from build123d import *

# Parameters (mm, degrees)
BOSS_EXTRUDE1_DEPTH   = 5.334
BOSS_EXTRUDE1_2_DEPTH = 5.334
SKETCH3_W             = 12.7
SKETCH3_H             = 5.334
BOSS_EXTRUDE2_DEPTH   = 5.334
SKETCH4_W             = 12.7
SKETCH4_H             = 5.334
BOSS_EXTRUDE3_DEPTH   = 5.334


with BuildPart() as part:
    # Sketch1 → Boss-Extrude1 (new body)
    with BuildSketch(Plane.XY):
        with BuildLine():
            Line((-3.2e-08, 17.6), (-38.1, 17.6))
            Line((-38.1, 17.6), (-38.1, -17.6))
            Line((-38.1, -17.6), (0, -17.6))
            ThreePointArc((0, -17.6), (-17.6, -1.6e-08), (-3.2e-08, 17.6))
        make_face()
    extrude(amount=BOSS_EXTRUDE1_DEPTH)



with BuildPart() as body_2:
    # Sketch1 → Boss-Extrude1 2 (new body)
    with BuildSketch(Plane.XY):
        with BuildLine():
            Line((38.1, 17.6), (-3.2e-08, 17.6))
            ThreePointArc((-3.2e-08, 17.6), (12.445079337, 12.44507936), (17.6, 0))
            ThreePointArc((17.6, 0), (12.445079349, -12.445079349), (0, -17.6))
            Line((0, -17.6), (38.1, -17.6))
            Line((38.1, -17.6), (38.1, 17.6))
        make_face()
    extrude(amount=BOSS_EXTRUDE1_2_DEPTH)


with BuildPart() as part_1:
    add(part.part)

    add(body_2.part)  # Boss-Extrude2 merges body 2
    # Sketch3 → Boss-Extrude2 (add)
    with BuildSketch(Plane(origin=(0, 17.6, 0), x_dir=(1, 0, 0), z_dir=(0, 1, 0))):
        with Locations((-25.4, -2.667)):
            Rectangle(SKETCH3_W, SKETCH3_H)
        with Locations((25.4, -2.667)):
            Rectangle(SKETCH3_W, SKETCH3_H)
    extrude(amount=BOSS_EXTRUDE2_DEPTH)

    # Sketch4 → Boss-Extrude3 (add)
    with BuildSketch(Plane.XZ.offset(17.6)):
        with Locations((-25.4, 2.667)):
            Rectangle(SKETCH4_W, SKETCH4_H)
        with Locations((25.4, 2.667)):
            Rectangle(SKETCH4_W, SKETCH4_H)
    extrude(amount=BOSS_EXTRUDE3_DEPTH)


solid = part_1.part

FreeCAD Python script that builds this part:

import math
import FreeCAD as App
import Part
import Sketcher
from FreeCAD import Vector
Q = App.Units.Quantity


def add_polygon(sketch, points):
    """Adds a closed chain of lines whose ends are joined by coincident constraints."""
    first, n = sketch.GeometryCount, len(points)
    for a, b in zip(points, points[1:] + points[:1]):
        sketch.addGeometry(Part.LineSegment(App.Vector(*a, 0), App.Vector(*b, 0)), False)
    for i in range(n):
        sketch.addConstraint(Sketcher.Constraint("Coincident", first + i, 2, first + (i + 1) % n, 1))

doc = App.newDocument("Part")
body = doc.addObject("PartDesign::Body", "Body")

sketch1 = body.newObject("Sketcher::SketchObject", "Sketch")
sketch1.AttachmentSupport = (doc.getObject("XY_Plane"), [""])
sketch1.MapMode = "FlatFace"
sketch1.addGeometry(Part.LineSegment(Vector(0, 17.6, 0), Vector(-38.1, 17.6, 0)), False)
sketch1.addGeometry(Part.LineSegment(Vector(-38.1, 17.6, 0), Vector(-38.1, -17.6, 0)), False)
sketch1.addGeometry(Part.LineSegment(Vector(-38.1, -17.6, 0), Vector(0, -17.6, 0)), False)
sketch1.addGeometry(Part.ArcOfCircle(Part.Circle(Vector(0, 0, 0), Vector(0, 0, 1), 17.6), math.radians(90), math.radians(270)), False)
sketch1.addConstraint(Sketcher.Constraint("Coincident", 0, 2, 1, 1))
sketch1.addConstraint(Sketcher.Constraint("Coincident", 1, 2, 2, 1))
sketch1.addConstraint(Sketcher.Constraint("Tangent", 2, 2, 3, 2))
sketch1.addConstraint(Sketcher.Constraint("Tangent", 3, 1, 0, 1))
sketch1.addConstraint(Sketcher.Constraint("Horizontal", 0))
sketch1.addConstraint(Sketcher.Constraint("Vertical", 1))
sketch1.addConstraint(Sketcher.Constraint("Horizontal", 2))
sketch1.addConstraint(Sketcher.Constraint("Coincident", 3, 3, -1, 1))
sketch1.addConstraint(Sketcher.Constraint("DistanceX", 0, 2, 0, 1, Q("1.5 in")))
sketch1.addConstraint(Sketcher.Constraint("Radius", 3, 17.6))
pad1 = body.newObject("PartDesign::Pad", "Pad")
pad1.Profile = sketch1
pad1.Length = Q("0.21 in")
body2 = doc.addObject("PartDesign::Body", "Body001")

sketch2 = body2.newObject("Sketcher::SketchObject", "Sketch001")
sketch2.AttachmentSupport = (doc.getObject("XY_Plane001"), [""])
sketch2.MapMode = "FlatFace"
sketch2.addGeometry(Part.LineSegment(Vector(38.1, 17.6, 0), Vector(0, 17.6, 0)), False)
sketch2.addGeometry(Part.ArcOfCircle(Part.Circle(Vector(0, 0, 0), Vector(0, 0, 1), 17.6), math.radians(0), math.radians(90)), False)
sketch2.addGeometry(Part.ArcOfCircle(Part.Circle(Vector(0, 0, 0), Vector(0, 0, 1), 17.6), math.radians(-90), math.radians(0)), False)
sketch2.addGeometry(Part.LineSegment(Vector(0, -17.6, 0), Vector(38.1, -17.6, 0)), False)
sketch2.addGeometry(Part.LineSegment(Vector(38.1, -17.6, 0), Vector(38.1, 17.6, 0)), False)
sketch2.addConstraint(Sketcher.Constraint("Tangent", 0, 2, 1, 2))
sketch2.addConstraint(Sketcher.Constraint("Tangent", 1, 1, 2, 2))
sketch2.addConstraint(Sketcher.Constraint("Tangent", 2, 1, 3, 1))
sketch2.addConstraint(Sketcher.Constraint("Coincident", 3, 2, 4, 1))
sketch2.addConstraint(Sketcher.Constraint("Coincident", 4, 2, 0, 1))
sketch2.addConstraint(Sketcher.Constraint("Horizontal", 0))
sketch2.addConstraint(Sketcher.Constraint("Horizontal", 3))
sketch2.addConstraint(Sketcher.Constraint("Vertical", 4))
sketch2.addConstraint(Sketcher.Constraint("Coincident", 1, 3, -1, 1))
sketch2.addConstraint(Sketcher.Constraint("Equal", 1, 2))
sketch2.addConstraint(Sketcher.Constraint("PointOnObject", 1, 1, -1))
sketch2.addConstraint(Sketcher.Constraint("DistanceX", 0, 2, 0, 1, Q("1.5 in")))
sketch2.addConstraint(Sketcher.Constraint("Radius", 1, 17.6))
pad2 = body2.newObject("PartDesign::Pad", "Pad001")
pad2.Profile = sketch2
pad2.Length = Q("0.21 in")
body.AllowCompound = True
doc.recompute()

boolean = body.newObject("PartDesign::Boolean", "Boolean")
boolean.Type = "Fuse"
boolean.addObjects([body2])

sketch3 = body.newObject("Sketcher::SketchObject", "Sketch002")
sketch3.AttachmentSupport = (doc.getObject("XZ_Plane"), [""])
sketch3.MapMode = "FlatFace"
sketch3.AttachmentOffset = App.Placement(Vector(0, 0, -17.6), App.Rotation())
add_polygon(sketch3, [(-31.75, 0), (-31.75, 5.334), (-19.05, 5.334), (-19.05, 0)])
add_polygon(sketch3, [(19.05, 0), (19.05, 5.334), (31.75, 5.334), (31.75, 0)])
sketch3.addConstraint(Sketcher.Constraint("Vertical", 0))
sketch3.addConstraint(Sketcher.Constraint("Horizontal", 1))
sketch3.addConstraint(Sketcher.Constraint("Vertical", 2))
sketch3.addConstraint(Sketcher.Constraint("Horizontal", 3))
sketch3.addConstraint(Sketcher.Constraint("Vertical", 4))
sketch3.addConstraint(Sketcher.Constraint("Horizontal", 5))
sketch3.addConstraint(Sketcher.Constraint("Vertical", 6))
sketch3.addConstraint(Sketcher.Constraint("Horizontal", 7))
sketch3.addConstraint(Sketcher.Constraint("Symmetric", 3, 2, 6, 2, -1, 1))
sketch3.addConstraint(Sketcher.Constraint("Symmetric", 1, 2, 4, 2, -2))
sketch3.addConstraint(Sketcher.Constraint("PointOnObject", 2, 2, -1))
sketch3.addConstraint(Sketcher.Constraint("DistanceX", 1, 1, 1, 2, Q("0.5 in")))
sketch3.addConstraint(Sketcher.Constraint("DistanceX", 0, 2, 4, 2, Q("2 in")))
sketch3.addConstraint(Sketcher.Constraint("DistanceY", 0, 1, 0, 2, Q("0.21 in")))
pad3 = body.newObject("PartDesign::Pad", "Pad002")
pad3.Profile = sketch3
pad3.Length = Q("0.21 in")
pad3.Reversed = True

sketch4 = body.newObject("Sketcher::SketchObject", "Sketch003")
sketch4.AttachmentSupport = (doc.getObject("XZ_Plane"), [""])
sketch4.MapMode = "FlatFace"
sketch4.AttachmentOffset = App.Placement(Vector(0, 0, 17.6), App.Rotation())
add_polygon(sketch4, [(-31.75, 5.334), (-31.75, 0), (-19.05, 0), (-19.05, 5.334)])
add_polygon(sketch4, [(19.05, 5.334), (19.05, 0), (31.75, 0), (31.75, 5.334)])
sketch4.addConstraint(Sketcher.Constraint("Vertical", 0))
sketch4.addConstraint(Sketcher.Constraint("Horizontal", 1))
sketch4.addConstraint(Sketcher.Constraint("Vertical", 2))
sketch4.addConstraint(Sketcher.Constraint("Horizontal", 3))
sketch4.addConstraint(Sketcher.Constraint("Vertical", 4))
sketch4.addConstraint(Sketcher.Constraint("Horizontal", 5))
sketch4.addConstraint(Sketcher.Constraint("Vertical", 6))
sketch4.addConstraint(Sketcher.Constraint("Horizontal", 7))
sketch4.addConstraint(Sketcher.Constraint("Symmetric", 1, 2, 4, 2, -1, 1))
sketch4.addConstraint(Sketcher.Constraint("Symmetric", 0, 2, 5, 2, -2))
sketch4.addConstraint(Sketcher.Constraint("Horizontal", 3, 2, 6, 2))
sketch4.addConstraint(Sketcher.Constraint("DistanceX", 1, 1, 1, 2, Q("0.5 in")))
sketch4.addConstraint(Sketcher.Constraint("DistanceX", 0, 2, 4, 2, Q("2 in")))
sketch4.addConstraint(Sketcher.Constraint("DistanceY", 0, 2, 0, 1, Q("0.21 in")))
pad4 = body.newObject("PartDesign::Pad", "Pad003")
pad4.Profile = sketch4
pad4.Length = Q("0.21 in")

doc.recompute()
